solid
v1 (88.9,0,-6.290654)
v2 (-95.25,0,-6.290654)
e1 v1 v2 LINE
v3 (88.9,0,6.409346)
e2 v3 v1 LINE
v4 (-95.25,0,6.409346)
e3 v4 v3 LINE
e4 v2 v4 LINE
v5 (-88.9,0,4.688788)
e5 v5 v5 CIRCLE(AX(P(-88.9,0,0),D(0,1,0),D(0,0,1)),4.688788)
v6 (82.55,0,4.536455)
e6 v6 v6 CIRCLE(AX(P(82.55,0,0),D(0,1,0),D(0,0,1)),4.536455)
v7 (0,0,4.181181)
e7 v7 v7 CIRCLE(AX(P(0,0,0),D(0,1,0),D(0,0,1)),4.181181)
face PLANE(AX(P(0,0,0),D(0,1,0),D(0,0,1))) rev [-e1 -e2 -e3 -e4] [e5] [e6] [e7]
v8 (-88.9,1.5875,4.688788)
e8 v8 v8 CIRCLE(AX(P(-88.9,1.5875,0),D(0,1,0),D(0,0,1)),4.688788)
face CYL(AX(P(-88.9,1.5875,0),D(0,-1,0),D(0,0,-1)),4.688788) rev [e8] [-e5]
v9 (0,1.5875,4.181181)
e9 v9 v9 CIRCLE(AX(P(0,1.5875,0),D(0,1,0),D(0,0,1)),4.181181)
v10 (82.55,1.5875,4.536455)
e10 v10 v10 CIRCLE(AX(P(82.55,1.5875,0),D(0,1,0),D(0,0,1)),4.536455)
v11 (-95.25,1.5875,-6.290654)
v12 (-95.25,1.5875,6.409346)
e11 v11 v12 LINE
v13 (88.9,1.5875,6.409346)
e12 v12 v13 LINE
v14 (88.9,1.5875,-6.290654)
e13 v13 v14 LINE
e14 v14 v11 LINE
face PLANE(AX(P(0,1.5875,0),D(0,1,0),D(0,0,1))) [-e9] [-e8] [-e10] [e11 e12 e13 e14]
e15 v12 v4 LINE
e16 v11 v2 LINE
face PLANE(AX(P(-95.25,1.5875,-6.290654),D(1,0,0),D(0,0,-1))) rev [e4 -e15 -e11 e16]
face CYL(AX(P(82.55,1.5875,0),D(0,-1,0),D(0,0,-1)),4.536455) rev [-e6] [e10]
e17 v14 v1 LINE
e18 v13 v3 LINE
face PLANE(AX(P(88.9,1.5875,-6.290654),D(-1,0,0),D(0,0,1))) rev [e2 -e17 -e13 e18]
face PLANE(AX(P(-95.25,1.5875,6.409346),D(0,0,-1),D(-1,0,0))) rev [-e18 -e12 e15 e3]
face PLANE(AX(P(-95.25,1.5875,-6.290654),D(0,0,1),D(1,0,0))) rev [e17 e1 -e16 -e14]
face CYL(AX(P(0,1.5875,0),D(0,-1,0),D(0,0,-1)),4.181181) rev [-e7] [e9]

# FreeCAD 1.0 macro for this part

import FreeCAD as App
import Part
import Sketcher

V = App.Vector
Q = App.Units.Quantity

doc = App.newDocument("Part")
body = doc.addObject("PartDesign::Body", "Body")

# Sketch on XZ plane
sketch1 = body.newObject("Sketcher::SketchObject", "Sketch")
sketch1.AttachmentSupport = (doc.getObject("XZ_Plane"), [""])
sketch1.MapMode = "FlatFace"
sketch1.addGeometry([
    Part.LineSegment(V(-95.2, -6.3, 0), V(-95.2, 6.4, 0)),  # 0
    Part.LineSegment(V(-95.2, 6.4, 0), V(88.9, 6.4, 0)),  # 1
    Part.LineSegment(V(88.9, 6.4, 0), V(88.9, -6.3, 0)),  # 2
    Part.LineSegment(V(88.9, -6.3, 0), V(-95.2, -6.3, 0)),  # 3
    Part.Circle(V(-88.9, 0, 0), V(0, 0, 1), 4.7),  # 4
    Part.Circle(V(0, 0, 0), V(0, 0, 1), 4.2),  # 5
    Part.Circle(V(82.5, 0, 0), V(0, 0, 1), 4.5),  # 6
], False)
sketch1.addConstraint([
    Sketcher.Constraint("Coincident", 0, 2, 1, 1),
    Sketcher.Constraint("Coincident", 1, 2, 2, 1),
    Sketcher.Constraint("Coincident", 2, 2, 3, 1),
    Sketcher.Constraint("Coincident", 3, 2, 0, 1),
    Sketcher.Constraint("Vertical", 0),
    Sketcher.Constraint("Horizontal", 1),
    Sketcher.Constraint("Vertical", 2),
    Sketcher.Constraint("Horizontal", 3),
    Sketcher.Constraint("Coincident", 5, 3, -1, 1),
    Sketcher.Constraint("PointOnObject", 4, 3, -1),
    Sketcher.Constraint("PointOnObject", 6, 3, -1),
    Sketcher.Constraint("DistanceY", 0, 1, 0, 2, Q("0.5 in")),
    Sketcher.Constraint("DistanceX", 0, 2, 6, 3, Q("7 in")),
    Sketcher.Constraint("DistanceX", 4, 3, 1, 2, Q("7 in")),
    Sketcher.Constraint("DistanceX", 1, 1, 1, 2, Q("7.25 in")),
    Sketcher.Constraint("DistanceX", 4, 3, -1, 1, Q("3.5 in")),
    Sketcher.Constraint("Diameter", 5, 8.362362),
    Sketcher.Constraint("Diameter", 6, 9.072909),
    Sketcher.Constraint("Diameter", 4, 9.377576),
    Sketcher.Constraint("DistanceY", -1, 1, 0, 2, 6.409346),
])
pad1 = body.newObject("PartDesign::Pad", "Pad")
pad1.Profile = sketch1
pad1.Length = Q("0.0625 in")
pad1.Reversed = True

doc.recompute()
